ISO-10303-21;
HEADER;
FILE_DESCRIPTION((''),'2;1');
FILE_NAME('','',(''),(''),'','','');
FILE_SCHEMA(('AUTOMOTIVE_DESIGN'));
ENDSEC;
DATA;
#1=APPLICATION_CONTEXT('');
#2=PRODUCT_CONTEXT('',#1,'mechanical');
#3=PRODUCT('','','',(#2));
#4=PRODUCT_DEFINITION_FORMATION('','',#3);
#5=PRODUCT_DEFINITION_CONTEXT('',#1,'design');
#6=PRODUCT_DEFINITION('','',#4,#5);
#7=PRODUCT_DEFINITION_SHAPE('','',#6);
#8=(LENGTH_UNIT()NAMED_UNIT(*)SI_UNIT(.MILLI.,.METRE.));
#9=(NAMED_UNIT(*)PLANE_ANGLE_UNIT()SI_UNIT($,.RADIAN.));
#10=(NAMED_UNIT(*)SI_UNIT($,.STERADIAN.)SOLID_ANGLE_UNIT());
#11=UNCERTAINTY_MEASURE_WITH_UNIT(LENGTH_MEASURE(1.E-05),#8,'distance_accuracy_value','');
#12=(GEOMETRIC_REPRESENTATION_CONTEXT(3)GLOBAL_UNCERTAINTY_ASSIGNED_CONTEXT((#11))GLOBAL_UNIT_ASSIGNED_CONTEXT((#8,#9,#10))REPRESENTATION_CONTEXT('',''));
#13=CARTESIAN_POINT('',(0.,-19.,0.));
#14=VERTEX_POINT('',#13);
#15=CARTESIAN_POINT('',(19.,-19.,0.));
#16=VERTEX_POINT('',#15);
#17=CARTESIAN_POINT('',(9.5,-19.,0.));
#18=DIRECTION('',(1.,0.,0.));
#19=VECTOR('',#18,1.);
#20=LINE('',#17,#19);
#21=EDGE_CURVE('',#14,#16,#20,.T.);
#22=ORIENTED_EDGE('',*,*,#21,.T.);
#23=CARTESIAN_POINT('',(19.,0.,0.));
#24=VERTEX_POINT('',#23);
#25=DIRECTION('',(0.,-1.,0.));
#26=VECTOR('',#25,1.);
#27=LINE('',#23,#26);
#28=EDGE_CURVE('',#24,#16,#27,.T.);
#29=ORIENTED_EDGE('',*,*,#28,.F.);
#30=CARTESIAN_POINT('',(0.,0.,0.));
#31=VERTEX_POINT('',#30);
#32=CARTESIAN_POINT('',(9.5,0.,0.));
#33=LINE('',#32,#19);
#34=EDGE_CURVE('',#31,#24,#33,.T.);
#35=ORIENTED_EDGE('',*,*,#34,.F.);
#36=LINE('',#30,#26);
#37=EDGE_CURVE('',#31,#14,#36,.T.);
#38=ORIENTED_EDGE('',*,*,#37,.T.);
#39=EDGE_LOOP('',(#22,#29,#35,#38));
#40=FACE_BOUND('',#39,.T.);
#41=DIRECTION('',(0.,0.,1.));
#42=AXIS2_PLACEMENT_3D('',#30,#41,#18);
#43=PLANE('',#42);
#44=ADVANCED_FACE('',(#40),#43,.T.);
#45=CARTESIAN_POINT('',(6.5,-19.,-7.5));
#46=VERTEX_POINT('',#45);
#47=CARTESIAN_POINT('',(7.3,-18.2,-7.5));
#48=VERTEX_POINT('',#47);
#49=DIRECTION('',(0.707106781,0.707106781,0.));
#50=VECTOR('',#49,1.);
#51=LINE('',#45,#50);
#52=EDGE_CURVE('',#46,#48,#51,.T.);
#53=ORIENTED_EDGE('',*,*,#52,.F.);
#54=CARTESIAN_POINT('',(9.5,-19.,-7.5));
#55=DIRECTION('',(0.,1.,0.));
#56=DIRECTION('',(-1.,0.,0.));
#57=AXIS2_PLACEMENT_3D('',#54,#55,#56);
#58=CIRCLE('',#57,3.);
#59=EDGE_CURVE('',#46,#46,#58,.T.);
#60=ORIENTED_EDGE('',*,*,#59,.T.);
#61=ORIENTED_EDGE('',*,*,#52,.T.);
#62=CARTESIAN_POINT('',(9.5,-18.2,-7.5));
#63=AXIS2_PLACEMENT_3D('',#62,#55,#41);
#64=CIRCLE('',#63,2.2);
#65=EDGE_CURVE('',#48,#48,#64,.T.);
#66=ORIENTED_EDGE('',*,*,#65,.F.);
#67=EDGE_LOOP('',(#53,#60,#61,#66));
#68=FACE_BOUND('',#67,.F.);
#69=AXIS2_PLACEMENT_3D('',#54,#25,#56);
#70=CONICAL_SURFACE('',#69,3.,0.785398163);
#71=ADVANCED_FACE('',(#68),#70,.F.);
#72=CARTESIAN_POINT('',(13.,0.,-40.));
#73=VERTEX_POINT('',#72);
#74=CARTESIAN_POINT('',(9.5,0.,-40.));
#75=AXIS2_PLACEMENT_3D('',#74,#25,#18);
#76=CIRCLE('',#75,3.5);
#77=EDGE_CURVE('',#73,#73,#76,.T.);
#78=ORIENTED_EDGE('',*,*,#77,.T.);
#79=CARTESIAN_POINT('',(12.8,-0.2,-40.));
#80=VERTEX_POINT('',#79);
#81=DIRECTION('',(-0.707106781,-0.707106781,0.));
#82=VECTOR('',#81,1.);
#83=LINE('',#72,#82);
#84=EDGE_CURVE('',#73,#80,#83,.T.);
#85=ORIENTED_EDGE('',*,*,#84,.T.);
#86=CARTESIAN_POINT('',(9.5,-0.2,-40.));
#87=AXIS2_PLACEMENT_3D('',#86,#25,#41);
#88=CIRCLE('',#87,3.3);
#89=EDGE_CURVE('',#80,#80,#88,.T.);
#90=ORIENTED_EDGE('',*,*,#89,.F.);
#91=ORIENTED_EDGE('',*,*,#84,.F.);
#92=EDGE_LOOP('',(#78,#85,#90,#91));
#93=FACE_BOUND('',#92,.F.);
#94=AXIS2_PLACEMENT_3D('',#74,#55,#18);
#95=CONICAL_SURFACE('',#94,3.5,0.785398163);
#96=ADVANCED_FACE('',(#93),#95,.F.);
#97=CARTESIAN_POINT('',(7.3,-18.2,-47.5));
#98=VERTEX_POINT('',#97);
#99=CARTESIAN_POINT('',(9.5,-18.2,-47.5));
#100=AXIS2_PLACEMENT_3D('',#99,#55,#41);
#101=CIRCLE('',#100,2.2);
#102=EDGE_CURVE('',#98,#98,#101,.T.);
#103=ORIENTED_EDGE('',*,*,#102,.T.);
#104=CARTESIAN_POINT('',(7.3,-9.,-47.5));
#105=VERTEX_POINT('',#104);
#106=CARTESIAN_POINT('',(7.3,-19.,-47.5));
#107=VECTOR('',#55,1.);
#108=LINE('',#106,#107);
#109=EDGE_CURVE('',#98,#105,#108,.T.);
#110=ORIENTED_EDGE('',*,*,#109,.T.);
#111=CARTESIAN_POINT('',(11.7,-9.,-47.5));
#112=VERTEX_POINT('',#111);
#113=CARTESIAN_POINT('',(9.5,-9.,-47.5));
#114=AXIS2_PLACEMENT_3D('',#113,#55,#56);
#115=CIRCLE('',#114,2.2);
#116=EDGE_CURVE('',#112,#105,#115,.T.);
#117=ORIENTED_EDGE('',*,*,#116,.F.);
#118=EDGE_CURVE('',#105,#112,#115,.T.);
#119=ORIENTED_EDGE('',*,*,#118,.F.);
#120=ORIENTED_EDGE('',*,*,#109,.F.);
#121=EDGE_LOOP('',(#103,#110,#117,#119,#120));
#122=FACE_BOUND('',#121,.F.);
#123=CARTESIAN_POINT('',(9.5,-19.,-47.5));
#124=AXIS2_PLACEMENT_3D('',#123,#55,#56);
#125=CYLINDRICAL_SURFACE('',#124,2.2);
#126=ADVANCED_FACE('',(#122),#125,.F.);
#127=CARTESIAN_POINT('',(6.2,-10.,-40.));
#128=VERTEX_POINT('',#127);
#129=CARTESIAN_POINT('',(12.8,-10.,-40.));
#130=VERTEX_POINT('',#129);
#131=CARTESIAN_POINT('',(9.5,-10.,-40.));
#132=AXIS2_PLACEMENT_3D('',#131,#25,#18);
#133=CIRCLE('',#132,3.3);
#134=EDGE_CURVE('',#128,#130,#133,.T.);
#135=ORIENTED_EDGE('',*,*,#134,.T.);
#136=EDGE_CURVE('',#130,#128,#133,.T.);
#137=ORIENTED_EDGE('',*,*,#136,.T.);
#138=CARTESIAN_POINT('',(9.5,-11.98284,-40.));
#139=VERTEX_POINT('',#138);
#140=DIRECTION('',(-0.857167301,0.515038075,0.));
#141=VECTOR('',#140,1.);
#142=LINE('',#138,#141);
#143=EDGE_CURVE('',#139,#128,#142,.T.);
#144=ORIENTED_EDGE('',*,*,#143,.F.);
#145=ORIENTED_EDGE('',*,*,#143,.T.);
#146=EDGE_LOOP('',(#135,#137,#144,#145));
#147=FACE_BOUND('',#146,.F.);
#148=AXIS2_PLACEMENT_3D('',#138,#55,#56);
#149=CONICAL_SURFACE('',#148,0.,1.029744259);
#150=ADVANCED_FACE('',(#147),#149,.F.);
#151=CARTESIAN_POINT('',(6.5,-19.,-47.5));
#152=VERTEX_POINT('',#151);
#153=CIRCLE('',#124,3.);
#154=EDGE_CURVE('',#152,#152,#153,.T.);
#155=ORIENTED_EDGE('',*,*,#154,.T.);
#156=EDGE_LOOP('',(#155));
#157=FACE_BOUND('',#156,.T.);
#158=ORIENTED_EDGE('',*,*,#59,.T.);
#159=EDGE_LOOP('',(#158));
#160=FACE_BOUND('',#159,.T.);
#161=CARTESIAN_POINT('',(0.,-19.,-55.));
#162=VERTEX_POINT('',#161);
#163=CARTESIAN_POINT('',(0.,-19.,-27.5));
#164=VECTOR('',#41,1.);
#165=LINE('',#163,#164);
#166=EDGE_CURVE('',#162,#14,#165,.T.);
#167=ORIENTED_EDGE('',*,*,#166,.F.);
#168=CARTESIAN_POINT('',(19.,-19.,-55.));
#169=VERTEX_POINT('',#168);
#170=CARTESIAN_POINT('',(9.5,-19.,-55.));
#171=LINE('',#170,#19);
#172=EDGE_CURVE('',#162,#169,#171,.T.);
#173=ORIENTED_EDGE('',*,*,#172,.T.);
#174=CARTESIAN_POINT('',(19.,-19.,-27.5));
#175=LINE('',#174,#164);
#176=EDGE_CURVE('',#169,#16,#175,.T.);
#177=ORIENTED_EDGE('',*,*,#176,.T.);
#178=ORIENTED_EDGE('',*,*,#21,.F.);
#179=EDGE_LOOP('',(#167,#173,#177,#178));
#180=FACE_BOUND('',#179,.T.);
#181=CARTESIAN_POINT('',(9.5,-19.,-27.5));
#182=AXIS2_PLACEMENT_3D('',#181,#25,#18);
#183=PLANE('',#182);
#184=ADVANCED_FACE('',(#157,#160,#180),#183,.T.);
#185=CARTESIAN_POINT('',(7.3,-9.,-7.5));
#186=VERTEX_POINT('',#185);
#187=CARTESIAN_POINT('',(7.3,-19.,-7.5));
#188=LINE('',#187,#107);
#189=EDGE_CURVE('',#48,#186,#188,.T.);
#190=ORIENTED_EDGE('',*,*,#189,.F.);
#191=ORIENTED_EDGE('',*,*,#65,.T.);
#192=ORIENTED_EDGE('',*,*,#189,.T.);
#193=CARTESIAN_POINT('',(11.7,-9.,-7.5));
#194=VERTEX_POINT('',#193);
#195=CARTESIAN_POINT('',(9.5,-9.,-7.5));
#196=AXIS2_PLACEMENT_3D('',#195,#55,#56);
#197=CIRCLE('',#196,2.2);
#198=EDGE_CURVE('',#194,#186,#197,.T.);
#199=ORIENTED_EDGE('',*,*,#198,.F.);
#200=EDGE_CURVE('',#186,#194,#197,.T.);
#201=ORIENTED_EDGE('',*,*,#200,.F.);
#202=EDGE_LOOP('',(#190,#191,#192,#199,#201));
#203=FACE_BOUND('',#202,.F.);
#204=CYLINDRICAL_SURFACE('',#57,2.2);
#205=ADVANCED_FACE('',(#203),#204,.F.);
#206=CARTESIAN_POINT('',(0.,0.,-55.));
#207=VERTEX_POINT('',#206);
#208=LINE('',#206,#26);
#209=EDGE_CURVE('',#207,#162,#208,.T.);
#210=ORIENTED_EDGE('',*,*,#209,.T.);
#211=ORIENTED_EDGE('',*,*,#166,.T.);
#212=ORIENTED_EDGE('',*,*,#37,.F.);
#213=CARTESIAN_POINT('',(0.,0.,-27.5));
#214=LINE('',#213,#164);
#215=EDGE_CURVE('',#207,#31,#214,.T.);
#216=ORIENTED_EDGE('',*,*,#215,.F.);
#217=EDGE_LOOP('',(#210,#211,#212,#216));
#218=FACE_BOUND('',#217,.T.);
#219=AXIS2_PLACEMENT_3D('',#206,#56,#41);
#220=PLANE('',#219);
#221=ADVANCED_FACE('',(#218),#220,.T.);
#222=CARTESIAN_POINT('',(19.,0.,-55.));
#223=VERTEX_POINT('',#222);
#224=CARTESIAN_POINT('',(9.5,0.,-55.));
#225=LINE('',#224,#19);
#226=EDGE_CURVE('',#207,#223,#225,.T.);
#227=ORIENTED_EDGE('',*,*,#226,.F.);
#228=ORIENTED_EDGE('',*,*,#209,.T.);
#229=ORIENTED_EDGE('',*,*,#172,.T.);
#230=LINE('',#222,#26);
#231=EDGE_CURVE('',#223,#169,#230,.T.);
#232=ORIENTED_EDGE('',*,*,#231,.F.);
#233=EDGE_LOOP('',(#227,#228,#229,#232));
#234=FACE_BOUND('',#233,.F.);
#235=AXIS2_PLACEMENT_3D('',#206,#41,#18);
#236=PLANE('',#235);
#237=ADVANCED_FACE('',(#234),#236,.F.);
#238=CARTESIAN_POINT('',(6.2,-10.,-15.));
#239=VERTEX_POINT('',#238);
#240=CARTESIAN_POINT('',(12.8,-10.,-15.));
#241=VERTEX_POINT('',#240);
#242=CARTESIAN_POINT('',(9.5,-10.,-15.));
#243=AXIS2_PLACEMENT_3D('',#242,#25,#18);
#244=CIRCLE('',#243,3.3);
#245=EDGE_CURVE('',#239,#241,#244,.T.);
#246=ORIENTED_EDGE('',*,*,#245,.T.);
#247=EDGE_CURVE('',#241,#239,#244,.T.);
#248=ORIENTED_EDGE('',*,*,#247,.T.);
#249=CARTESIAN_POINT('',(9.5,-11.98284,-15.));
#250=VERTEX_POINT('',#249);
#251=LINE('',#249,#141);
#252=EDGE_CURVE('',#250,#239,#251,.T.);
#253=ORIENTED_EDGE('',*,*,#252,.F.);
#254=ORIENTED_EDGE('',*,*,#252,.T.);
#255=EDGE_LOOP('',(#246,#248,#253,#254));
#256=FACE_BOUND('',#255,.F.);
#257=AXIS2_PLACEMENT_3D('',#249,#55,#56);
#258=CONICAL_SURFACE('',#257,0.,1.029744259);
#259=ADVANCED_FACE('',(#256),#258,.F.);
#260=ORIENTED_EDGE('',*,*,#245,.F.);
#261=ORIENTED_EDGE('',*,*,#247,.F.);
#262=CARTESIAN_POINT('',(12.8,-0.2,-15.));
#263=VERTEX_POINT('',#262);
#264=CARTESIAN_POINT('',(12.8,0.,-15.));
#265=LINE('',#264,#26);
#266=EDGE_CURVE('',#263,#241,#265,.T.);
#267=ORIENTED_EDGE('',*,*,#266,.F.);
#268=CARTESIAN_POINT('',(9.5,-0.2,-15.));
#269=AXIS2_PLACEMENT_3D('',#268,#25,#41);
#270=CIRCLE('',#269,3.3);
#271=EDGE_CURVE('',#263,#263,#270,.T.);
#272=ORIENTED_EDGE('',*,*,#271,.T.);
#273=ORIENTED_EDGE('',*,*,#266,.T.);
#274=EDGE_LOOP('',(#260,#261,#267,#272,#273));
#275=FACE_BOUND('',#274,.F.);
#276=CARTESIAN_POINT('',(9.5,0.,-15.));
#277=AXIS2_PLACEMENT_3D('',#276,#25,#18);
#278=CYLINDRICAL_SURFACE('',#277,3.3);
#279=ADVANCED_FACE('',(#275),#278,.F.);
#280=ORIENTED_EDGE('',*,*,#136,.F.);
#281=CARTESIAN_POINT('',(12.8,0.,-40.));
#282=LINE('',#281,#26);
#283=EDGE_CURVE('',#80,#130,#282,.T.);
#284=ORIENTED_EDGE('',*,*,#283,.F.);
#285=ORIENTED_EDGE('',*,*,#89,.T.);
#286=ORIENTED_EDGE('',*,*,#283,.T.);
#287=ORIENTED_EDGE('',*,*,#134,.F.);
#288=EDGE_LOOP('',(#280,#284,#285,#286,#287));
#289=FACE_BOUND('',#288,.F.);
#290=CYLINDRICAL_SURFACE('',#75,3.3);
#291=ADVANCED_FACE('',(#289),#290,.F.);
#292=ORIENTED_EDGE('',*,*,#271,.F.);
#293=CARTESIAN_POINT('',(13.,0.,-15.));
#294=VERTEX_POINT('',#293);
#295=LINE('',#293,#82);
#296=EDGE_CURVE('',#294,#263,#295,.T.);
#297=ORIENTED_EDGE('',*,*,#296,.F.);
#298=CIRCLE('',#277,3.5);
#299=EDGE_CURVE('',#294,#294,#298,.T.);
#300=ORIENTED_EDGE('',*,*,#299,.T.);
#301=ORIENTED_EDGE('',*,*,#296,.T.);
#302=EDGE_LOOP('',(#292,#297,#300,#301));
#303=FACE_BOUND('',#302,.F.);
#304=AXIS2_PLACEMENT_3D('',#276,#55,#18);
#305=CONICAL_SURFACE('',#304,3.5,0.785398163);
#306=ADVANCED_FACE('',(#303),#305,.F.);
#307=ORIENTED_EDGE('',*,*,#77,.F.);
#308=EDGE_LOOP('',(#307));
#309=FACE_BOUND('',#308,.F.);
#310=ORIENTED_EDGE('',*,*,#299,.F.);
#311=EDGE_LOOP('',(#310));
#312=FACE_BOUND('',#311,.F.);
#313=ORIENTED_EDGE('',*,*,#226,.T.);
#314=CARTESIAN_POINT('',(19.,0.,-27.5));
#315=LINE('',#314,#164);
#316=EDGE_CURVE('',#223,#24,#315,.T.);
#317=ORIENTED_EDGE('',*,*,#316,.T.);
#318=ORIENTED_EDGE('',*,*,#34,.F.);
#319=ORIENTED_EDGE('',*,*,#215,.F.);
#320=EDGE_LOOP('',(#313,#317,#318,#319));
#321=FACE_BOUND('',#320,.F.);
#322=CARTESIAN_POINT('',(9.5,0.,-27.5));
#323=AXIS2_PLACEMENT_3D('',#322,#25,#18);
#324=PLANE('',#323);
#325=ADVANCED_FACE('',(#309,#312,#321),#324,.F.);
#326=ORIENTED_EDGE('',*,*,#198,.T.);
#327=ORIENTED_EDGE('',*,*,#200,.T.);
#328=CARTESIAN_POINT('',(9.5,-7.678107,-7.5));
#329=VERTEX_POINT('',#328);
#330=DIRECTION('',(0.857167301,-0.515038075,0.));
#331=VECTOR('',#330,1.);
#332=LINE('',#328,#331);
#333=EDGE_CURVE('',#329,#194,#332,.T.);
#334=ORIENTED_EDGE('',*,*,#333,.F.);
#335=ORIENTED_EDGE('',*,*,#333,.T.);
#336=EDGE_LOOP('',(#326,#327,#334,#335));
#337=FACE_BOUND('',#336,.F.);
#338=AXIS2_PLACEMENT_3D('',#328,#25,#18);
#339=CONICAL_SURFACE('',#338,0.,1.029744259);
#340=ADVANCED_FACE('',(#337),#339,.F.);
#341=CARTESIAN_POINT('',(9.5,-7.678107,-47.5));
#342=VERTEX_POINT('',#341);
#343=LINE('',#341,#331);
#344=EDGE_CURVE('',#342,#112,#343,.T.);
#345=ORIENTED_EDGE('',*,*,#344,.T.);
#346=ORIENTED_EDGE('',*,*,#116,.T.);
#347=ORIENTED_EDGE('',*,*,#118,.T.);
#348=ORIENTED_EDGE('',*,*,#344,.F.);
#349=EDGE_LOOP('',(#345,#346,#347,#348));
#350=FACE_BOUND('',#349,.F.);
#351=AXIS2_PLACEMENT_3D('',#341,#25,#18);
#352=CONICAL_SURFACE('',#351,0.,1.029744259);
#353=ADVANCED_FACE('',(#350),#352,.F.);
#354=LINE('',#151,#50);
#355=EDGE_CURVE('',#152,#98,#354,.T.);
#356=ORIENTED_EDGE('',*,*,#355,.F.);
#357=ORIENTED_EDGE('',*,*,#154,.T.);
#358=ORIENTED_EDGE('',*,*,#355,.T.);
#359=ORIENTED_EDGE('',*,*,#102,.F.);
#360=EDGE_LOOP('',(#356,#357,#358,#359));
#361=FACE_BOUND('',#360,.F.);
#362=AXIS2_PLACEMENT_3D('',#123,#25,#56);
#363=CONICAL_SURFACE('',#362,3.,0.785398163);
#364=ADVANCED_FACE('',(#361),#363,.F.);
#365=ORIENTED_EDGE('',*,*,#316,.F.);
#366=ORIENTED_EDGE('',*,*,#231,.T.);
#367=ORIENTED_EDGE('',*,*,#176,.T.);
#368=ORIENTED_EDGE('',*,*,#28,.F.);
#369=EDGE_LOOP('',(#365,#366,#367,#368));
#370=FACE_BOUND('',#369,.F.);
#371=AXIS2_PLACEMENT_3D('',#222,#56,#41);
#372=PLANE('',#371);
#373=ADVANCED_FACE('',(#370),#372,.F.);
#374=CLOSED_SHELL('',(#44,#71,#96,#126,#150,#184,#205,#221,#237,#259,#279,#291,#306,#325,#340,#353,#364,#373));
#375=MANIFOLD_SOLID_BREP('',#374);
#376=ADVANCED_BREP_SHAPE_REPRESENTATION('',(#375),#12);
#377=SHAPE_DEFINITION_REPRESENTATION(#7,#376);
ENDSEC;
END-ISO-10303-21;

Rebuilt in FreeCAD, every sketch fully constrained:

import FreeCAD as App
import Part
import Sketcher
from FreeCAD import Vector

doc = App.newDocument("Part")
params = doc.addObject("Spreadsheet::Sheet", "Params")
for row, (alias, value) in enumerate([
    ("sketch1_width", "19 mm"),
    ("sketch1_height", "55 mm"),
    ("pad1_length", "19 mm"),
    ("sketch2_diameter", "4.4 mm"),
    ("hole_diameter", "4.4 mm"),
    ("hole_depth", "10 mm"),
    ("hole_csink_diameter", "6 mm"),
    ("sketch3_diameter", "6.6 mm"),
    ("hole2_diameter", "6.6 mm"),
    ("hole2_depth", "10 mm"),
    ("hole2_csink_diameter", "7 mm"),
], start=1):
    params.set(f"A{row}", alias)
    params.set(f"B{row}", "=" + value)
    params.setAlias(f"B{row}", alias)

body = doc.addObject("PartDesign::Body", "Body")

# Sketch on XZ plane
sketch1 = doc.addObject("Sketcher::SketchObject", "Sketch")
body.addObject(sketch1)
sketch1.AttachmentSupport = (doc.XZ_Plane, [""])
sketch1.MapMode = "FlatFace"
sketch1.addGeometry(Part.LineSegment(Vector(0, 0, 0), Vector(0, -55, 0)), False)
sketch1.addGeometry(Part.LineSegment(Vector(0, -55, 0), Vector(19, -55, 0)), False)
sketch1.addGeometry(Part.LineSegment(Vector(19, -55, 0), Vector(19, 0, 0)), False)
sketch1.addGeometry(Part.LineSegment(Vector(19, 0, 0), Vector(0, 0, 0)), False)
sketch1.addConstraint(Sketcher.Constraint("Coincident", 0, 2, 1, 1))
sketch1.addConstraint(Sketcher.Constraint("Coincident", 1, 2, 2, 1))
sketch1.addConstraint(Sketcher.Constraint("Coincident", 2, 2, 3, 1))
sketch1.addConstraint(Sketcher.Constraint("Coincident", 3, 2, 0, 1))
sketch1.addConstraint(Sketcher.Constraint("Vertical", 0))
sketch1.addConstraint(Sketcher.Constraint("Horizontal", 1))
sketch1.addConstraint(Sketcher.Constraint("Vertical", 2))
sketch1.addConstraint(Sketcher.Constraint("Horizontal", 3))
sketch1.addConstraint(Sketcher.Constraint("Coincident", 3, 2, -1, 1))
sketch1.addConstraint(Sketcher.Constraint("DistanceX", 1, 1, 1, 2, 19.0))
sketch1.addConstraint(Sketcher.Constraint("DistanceY", 0, 2, 0, 1, 55.0))
sketch1.setExpression("Constraints[9]", "Params.sketch1_width")
sketch1.setExpression("Constraints[10]", "Params.sketch1_height")
pad1 = doc.addObject("PartDesign::Pad", "Pad")
body.addObject(pad1)
pad1.Profile = sketch1
pad1.setExpression("Length", "Params.pad1_length")

# Sketch on XZ plane
sketch2 = doc.addObject("Sketcher::SketchObject", "Sketch001")
body.addObject(sketch2)
sketch2.AttachmentSupport = (doc.XZ_Plane, [""])
sketch2.MapMode = "FlatFace"
sketch2.AttachmentOffset = App.Placement(Vector(0, 0, 19), App.Rotation())
sketch2.addGeometry(Part.Circle(Vector(9.5, -7.5, 0), Vector(0, 0, 1), 2.2), False)
sketch2.addGeometry(Part.Circle(Vector(9.5, -47.5, 0), Vector(0, 0, 1), 2.2), False)
sketch2.addConstraint(Sketcher.Constraint("Equal", 0, 1))
sketch2.addConstraint(Sketcher.Constraint("Vertical", 0, 3, 1, 3))
sketch2.addConstraint(Sketcher.Constraint("Diameter", 0, 4.4))
sketch2.addConstraint(Sketcher.Constraint("DistanceY", 1, 3, 0, 3, 40.0))
sketch2.addConstraint(Sketcher.Constraint("DistanceX", -1, 1, 0, 3, 9.5))
sketch2.addConstraint(Sketcher.Constraint("DistanceY", 0, 3, -1, 1, 7.5))
sketch2.setExpression("Constraints[2]", "Params.sketch2_diameter")
doc.recompute()
hole = doc.addObject("PartDesign::Hole", "Hole")
body.addObject(hole)
hole.Profile = sketch2
hole.ThreadType = "None"
hole.setExpression("Diameter", "Params.hole_diameter")
hole.DepthType = "Dimension"
hole.setExpression("Depth", "Params.hole_depth")
hole.DrillPoint = "Angled"
hole.DrillPointAngle = 118
hole.HoleCutType = "Countersink"
hole.setExpression("HoleCutDiameter", "Params.hole_csink_diameter")
hole.HoleCutCountersinkAngle = 90

# Sketch on XZ plane
sketch3 = doc.addObject("Sketcher::SketchObject", "Sketch002")
body.addObject(sketch3)
sketch3.AttachmentSupport = (doc.XZ_Plane, [""])
sketch3.MapMode = "FlatFace"
sketch3.addGeometry(Part.Circle(Vector(9.5, -15, 0), Vector(0, 0, 1), 3.3), False)
sketch3.addGeometry(Part.Circle(Vector(9.5, -40, 0), Vector(0, 0, 1), 3.3), False)
sketch3.addConstraint(Sketcher.Constraint("Equal", 0, 1))
sketch3.addConstraint(Sketcher.Constraint("Vertical", 0, 3, 1, 3))
sketch3.addConstraint(Sketcher.Constraint("Diameter", 0, 6.6))
sketch3.addConstraint(Sketcher.Constraint("DistanceY", 0, 3, -1, 1, 15.0))
sketch3.addConstraint(Sketcher.Constraint("DistanceY", 1, 3, -1, 1, 40.0))
sketch3.addConstraint(Sketcher.Constraint("DistanceX", -1, 1, 0, 3, 9.5))
sketch3.setExpression("Constraints[2]", "Params.sketch3_diameter")
doc.recompute()
hole2 = doc.addObject("PartDesign::Hole", "Hole001")
body.addObject(hole2)
hole2.Profile = sketch3
hole2.ThreadType = "None"
hole2.setExpression("Diameter", "Params.hole2_diameter")
hole2.DepthType = "Dimension"
hole2.setExpression("Depth", "Params.hole2_depth")
hole2.DrillPoint = "Angled"
hole2.DrillPointAngle = 118
hole2.HoleCutType = "Countersink"
hole2.setExpression("HoleCutDiameter", "Params.hole2_csink_diameter")
hole2.HoleCutCountersinkAngle = 90
hole2.Reversed = True

doc.recompute()
